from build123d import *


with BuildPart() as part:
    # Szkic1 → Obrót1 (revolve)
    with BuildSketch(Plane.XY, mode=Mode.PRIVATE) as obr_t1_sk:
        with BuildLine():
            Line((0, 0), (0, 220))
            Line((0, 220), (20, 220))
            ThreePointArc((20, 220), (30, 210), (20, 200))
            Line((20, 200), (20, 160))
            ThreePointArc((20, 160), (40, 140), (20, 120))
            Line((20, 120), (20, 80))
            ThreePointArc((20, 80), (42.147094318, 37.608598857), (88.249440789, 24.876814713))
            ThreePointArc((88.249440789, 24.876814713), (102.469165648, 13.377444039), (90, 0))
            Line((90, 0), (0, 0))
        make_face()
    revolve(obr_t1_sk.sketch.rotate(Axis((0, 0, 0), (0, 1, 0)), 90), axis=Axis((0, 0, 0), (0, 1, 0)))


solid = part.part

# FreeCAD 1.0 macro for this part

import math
import FreeCAD as App
import Part
import Sketcher
from FreeCAD import Vector

doc = App.newDocument("Part")
body = doc.addObject("PartDesign::Body", "Body")

# Sketch on XY plane
sketch1 = body.newObject("Sketcher::SketchObject", "Sketch")
sketch1.AttachmentSupport = (doc.getObject("XY_Plane"), [""])
sketch1.MapMode = "FlatFace"
sketch1.addGeometry([
    Part.LineSegment(Vector(0, 220, 0), Vector(0, 0, 0)),  # 0
    Part.LineSegment(Vector(0, 0, 0), Vector(90, 0, 0)),  # 1
    Part.ArcOfCircle(Part.Circle(Vector(90, 12, 0), Vector(0, 0, 1), 12), math.radians(-90), math.radians(98)),  # 2
    Part.ArcOfCircle(Part.Circle(Vector(80, 84, 0), Vector(0, 0, 1), 60), math.radians(-176), math.radians(-82)),  # 3
    Part.LineSegment(Vector(20, 80, 0), Vector(20, 120, 0)),  # 4
    Part.ArcOfCircle(Part.Circle(Vector(20, 140, 0), Vector(0, 0, 1), 20), math.radians(-90), math.radians(90)),  # 5
    Part.LineSegment(Vector(20, 160, 0), Vector(20, 200, 0)),  # 6
    Part.ArcOfCircle(Part.Circle(Vector(20, 210, 0), Vector(0, 0, 1), 10), math.radians(-90), math.radians(90)),  # 7
    Part.LineSegment(Vector(20, 220, 0), Vector(0, 220, 0)),  # 8
], False)
sketch1.addConstraint([
    Sketcher.Constraint("Coincident", 0, 2, 1, 1),
    Sketcher.Constraint("Tangent", 1, 2, 2, 1),
    Sketcher.Constraint("Tangent", 2, 2, 3, 2),
    Sketcher.Constraint("Coincident", 3, 1, 4, 1),
    Sketcher.Constraint("Coincident", 4, 2, 5, 1),
    Sketcher.Constraint("Coincident", 5, 2, 6, 1),
    Sketcher.Constraint("Coincident", 6, 2, 7, 1),
    Sketcher.Constraint("Tangent", 7, 2, 8, 1),
    Sketcher.Constraint("Coincident", 8, 2, 0, 1),
    Sketcher.Constraint("Vertical", 0),
    Sketcher.Constraint("Horizontal", 1),
    Sketcher.Constraint("Vertical", 4),
    Sketcher.Constraint("Vertical", 6),
    Sketcher.Constraint("Horizontal", 8),
    Sketcher.Constraint("Coincident", 0, 2, -1, 1),
    Sketcher.Constraint("Vertical", 5, 3, 7, 3),
    Sketcher.Constraint("Vertical", 7, 3, 3, 1),
    Sketcher.Constraint("Vertical", 4, 2, 5, 2),
    Sketcher.Constraint("Equal", 4, 6),
    Sketcher.Constraint("Radius", 3, 60.0),
    Sketcher.Constraint("Radius", 5, 20.0),
    Sketcher.Constraint("Radius", 7, 10.0),
    Sketcher.Constraint("Radius", 2, 12.5),
    Sketcher.Constraint("DistanceX", 1, 1, 1, 2, 90.0),
    Sketcher.Constraint("DistanceX", 8, 2, 8, 1, 20.0),
    Sketcher.Constraint("DistanceY", 0, 2, 0, 1, 220.0),
    Sketcher.Constraint("DistanceY", 4, 1, 4, 2, 40.0),
])
revolution = body.newObject("PartDesign::Revolution", "Revolution")
revolution.Profile = sketch1
revolution.ReferenceAxis = (sketch1, ["V_Axis"])
revolution.Angle = 360

doc.recompute()
